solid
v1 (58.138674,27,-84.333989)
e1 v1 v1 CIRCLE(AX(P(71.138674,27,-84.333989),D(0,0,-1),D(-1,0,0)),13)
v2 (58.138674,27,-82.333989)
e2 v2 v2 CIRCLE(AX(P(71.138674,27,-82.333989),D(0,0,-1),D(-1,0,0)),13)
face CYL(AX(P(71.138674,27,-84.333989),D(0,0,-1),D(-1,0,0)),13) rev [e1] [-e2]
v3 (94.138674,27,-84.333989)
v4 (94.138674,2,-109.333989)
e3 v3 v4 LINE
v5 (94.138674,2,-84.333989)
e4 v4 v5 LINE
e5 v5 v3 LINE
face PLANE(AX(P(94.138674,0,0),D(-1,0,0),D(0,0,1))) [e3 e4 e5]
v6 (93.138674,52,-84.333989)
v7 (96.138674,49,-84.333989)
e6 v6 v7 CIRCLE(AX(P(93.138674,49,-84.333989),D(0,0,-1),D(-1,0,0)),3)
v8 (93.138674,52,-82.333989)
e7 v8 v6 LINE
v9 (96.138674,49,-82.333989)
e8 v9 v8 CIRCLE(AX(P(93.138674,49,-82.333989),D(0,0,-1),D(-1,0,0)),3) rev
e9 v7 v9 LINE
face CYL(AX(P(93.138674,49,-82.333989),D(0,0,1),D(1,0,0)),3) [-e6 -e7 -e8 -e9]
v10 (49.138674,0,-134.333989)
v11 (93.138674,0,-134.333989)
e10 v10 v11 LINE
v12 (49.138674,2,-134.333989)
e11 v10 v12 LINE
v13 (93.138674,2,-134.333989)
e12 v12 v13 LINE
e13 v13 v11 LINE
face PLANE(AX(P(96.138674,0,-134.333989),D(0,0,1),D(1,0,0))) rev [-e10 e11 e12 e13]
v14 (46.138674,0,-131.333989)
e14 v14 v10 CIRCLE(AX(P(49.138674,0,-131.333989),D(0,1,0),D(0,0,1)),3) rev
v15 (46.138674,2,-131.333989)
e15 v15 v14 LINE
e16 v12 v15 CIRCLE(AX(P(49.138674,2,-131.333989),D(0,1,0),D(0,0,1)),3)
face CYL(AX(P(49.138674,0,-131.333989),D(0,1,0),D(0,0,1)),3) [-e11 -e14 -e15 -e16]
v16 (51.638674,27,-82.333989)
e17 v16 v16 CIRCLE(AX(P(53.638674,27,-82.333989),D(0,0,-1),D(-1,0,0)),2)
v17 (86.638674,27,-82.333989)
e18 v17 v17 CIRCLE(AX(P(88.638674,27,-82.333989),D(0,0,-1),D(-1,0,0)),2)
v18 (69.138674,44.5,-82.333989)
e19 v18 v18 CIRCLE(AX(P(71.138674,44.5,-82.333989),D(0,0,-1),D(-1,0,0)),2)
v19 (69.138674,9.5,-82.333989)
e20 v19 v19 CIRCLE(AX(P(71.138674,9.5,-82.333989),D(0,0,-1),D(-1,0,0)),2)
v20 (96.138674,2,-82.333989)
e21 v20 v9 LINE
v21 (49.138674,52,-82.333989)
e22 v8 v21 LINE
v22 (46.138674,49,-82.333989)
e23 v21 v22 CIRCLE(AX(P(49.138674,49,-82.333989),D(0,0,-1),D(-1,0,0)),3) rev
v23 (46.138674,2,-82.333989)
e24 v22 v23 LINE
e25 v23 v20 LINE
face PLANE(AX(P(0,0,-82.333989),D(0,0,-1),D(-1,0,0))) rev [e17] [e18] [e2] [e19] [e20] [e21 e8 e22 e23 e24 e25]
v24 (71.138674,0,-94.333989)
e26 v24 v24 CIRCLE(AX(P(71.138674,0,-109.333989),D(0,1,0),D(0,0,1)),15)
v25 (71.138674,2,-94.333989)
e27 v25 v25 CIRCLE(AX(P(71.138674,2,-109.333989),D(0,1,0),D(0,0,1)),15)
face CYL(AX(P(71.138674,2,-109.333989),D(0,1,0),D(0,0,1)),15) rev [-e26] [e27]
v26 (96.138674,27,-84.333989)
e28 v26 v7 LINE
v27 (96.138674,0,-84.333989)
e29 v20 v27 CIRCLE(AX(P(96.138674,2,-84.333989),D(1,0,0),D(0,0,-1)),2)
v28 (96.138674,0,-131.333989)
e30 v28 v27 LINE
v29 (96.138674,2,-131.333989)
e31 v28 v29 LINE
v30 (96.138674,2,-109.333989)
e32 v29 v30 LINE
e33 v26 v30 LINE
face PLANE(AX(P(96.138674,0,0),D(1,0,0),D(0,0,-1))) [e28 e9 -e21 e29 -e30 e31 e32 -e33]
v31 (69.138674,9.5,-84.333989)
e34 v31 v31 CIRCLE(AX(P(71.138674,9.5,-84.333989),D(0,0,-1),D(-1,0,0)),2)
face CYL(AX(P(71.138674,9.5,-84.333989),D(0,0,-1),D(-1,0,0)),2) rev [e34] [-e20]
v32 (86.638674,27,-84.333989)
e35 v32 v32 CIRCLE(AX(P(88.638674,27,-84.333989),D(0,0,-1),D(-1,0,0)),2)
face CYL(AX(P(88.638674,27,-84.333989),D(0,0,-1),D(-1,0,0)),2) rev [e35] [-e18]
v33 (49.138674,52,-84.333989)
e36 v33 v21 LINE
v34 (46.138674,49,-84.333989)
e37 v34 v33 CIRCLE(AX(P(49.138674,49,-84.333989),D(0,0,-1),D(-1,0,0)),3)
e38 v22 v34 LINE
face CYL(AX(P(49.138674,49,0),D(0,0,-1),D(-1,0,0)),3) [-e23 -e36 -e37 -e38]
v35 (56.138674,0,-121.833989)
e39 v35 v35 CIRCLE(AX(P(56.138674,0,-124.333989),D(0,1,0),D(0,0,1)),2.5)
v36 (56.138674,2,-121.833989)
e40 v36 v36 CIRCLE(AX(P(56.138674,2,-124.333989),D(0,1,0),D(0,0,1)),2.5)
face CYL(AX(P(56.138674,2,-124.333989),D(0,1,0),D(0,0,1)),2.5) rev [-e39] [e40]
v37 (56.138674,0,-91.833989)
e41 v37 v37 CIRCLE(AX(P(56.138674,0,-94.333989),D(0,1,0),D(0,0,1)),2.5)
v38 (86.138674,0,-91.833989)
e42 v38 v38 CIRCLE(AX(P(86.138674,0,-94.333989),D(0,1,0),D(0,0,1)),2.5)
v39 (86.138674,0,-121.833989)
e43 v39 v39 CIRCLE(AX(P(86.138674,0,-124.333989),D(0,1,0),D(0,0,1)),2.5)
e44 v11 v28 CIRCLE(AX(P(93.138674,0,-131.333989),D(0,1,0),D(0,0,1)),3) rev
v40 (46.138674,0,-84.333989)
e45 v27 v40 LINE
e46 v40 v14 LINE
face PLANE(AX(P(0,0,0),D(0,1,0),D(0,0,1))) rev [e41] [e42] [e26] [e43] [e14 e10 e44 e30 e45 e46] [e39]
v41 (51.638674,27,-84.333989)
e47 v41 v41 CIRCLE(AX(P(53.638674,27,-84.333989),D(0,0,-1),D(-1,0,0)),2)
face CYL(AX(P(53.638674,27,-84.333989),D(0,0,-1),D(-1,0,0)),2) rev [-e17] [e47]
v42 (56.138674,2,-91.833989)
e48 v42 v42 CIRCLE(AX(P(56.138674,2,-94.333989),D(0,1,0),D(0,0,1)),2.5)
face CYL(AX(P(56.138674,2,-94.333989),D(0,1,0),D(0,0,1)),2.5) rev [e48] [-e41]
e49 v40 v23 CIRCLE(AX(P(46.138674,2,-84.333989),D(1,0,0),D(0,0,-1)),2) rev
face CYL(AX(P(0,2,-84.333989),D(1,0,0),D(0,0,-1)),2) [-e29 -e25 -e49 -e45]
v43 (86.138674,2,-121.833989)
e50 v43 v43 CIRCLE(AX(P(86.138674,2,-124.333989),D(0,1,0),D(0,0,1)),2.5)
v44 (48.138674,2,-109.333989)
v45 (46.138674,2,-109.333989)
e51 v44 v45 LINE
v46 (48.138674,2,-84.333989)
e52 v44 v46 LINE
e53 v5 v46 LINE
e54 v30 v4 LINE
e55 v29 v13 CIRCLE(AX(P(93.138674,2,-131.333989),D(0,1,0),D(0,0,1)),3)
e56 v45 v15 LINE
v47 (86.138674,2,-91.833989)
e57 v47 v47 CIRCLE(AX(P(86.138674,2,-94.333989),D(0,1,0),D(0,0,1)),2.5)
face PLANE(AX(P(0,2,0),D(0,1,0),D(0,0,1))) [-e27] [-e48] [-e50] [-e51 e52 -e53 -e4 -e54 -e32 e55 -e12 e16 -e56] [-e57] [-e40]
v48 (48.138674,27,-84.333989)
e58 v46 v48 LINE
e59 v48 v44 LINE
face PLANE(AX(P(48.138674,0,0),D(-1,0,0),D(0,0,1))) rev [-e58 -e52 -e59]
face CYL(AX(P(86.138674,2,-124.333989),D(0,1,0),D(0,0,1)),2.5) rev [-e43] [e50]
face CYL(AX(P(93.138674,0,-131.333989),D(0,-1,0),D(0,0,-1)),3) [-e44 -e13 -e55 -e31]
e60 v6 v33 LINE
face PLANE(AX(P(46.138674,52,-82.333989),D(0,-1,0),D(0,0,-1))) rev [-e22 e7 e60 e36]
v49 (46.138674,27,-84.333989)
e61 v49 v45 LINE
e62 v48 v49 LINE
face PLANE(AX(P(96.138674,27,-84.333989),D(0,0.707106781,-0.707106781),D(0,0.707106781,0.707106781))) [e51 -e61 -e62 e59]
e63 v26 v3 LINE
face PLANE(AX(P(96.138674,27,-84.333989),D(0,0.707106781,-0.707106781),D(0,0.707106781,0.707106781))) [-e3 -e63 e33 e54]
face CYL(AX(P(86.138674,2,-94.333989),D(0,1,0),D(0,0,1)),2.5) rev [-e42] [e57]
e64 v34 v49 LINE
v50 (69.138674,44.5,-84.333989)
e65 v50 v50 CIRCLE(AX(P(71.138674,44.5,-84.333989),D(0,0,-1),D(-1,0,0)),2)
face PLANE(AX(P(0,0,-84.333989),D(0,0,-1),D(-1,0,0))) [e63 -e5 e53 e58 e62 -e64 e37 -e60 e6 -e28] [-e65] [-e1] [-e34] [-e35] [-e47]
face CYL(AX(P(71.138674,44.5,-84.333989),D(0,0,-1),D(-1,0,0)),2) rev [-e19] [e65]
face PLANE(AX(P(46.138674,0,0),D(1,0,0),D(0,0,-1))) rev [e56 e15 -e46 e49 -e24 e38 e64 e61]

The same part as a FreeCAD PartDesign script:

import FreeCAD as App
import Part
import Sketcher

V = App.Vector
Q = App.Units.Quantity


def edges_at(feature, points):
    """Names of the edges that pass closest to the given points."""
    edges = feature.Shape.Edges
    near = lambda p: min(range(len(edges)), key=lambda i: edges[i].distToShape(Part.Vertex(*p))[0])
    return sorted({f"Edge{near(p) + 1}" for p in points})

doc = App.newDocument("Part")
params = doc.addObject("Spreadsheet::Sheet", "Params")
for row, (alias, value) in enumerate([
    ("sketch1_width", "25 mm"),
    ("pad1_length", "50 mm"),
    ("sketch2_width", "50 mm"),
    ("pad2_length", "2 mm"),
    ("sketch3_width", "25 mm"),
    ("pocket1_length", "46 mm"),
    ("sketch4_width", "50 mm"),
    ("sketch4_height", "52 mm"),
    ("pad3_length", "2 mm"),
    ("sketch5_diameter", "26 mm"),
    ("hole_diameter", "26 mm"),
    ("sketch6_diameter", "4 mm"),
    ("hole2_diameter", "4 mm"),
    ("sketch7_diameter", "30 mm"),
    ("hole3_diameter", "30 mm"),
    ("sketch8_diameter", "5 mm"),
    ("hole4_diameter", "5 mm"),
    ("fillet_radius", "2 mm"),
    ("fillet2_radius", "3 mm"),
], start=1):
    params.set(f"A{row}", alias)
    params.set(f"B{row}", "=" + value)
    params.setAlias(f"B{row}", alias)

body = doc.addObject("PartDesign::Body", "Body")

# Sketch on YZ plane
sketch1 = body.newObject("Sketcher::SketchObject", "Sketch")
sketch1.AttachmentSupport = (doc.getObject("YZ_Plane"), [""])
sketch1.MapMode = "FlatFace"
sketch1.AttachmentOffset = App.Placement(V(0, 0, 46.138674), App.Rotation())
sketch1.addGeometry([
    Part.LineSegment(V(27, -84, 0), V(2, -109, 0)),
    Part.LineSegment(V(2, -109, 0), V(2, -84, 0)),
    Part.LineSegment(V(2, -84, 0), V(27, -84, 0)),
], False)
sketch1.addConstraint([
    Sketcher.Constraint("Coincident", 0, 2, 1, 1),
    Sketcher.Constraint("Coincident", 1, 2, 2, 1),
    Sketcher.Constraint("Coincident", 2, 2, 0, 1),
    Sketcher.Constraint("Vertical", 1),
    Sketcher.Constraint("Horizontal", 2),
    Sketcher.Constraint("Equal", 2, 1),
    Sketcher.Constraint("DistanceX", 2, 1, 2, 2, Q("25 mm")),
    Sketcher.Constraint("DistanceX", -1, 1, 0, 2, Q("2 mm")),
    Sketcher.Constraint("DistanceY", 0, 2, -1, 1, Q("109.333989 mm")),
])
sketch1.setExpression("Constraints[6]", "Params.sketch1_width")
pad1 = body.newObject("PartDesign::Pad", "Pad")
pad1.Profile = sketch1
pad1.setExpression("Length", "Params.pad1_length")

# Sketch on XZ plane
sketch2 = body.newObject("Sketcher::SketchObject", "Sketch001")
sketch2.AttachmentSupport = (doc.getObject("XZ_Plane"), [""])
sketch2.MapMode = "FlatFace"
sketch2.AttachmentOffset = App.Placement(V(0, 0, -2), App.Rotation())
sketch2.addGeometry([
    Part.LineSegment(V(46, -84, 0), V(46, -134, 0)),
    Part.LineSegment(V(46, -134, 0), V(96, -134, 0)),
    Part.LineSegment(V(96, -134, 0), V(96, -84, 0)),
    Part.LineSegment(V(96, -84, 0), V(46, -84, 0)),
], False)
sketch2.addConstraint([
    Sketcher.Constraint("Coincident", 0, 2, 1, 1),
    Sketcher.Constraint("Coincident", 1, 2, 2, 1),
    Sketcher.Constraint("Coincident", 2, 2, 3, 1),
    Sketcher.Constraint("Coincident", 3, 2, 0, 1),
    Sketcher.Constraint("Vertical", 0),
    Sketcher.Constraint("Horizontal", 1),
    Sketcher.Constraint("Vertical", 2),
    Sketcher.Constraint("Horizontal", 3),
    Sketcher.Constraint("Equal", 3, 0),
    Sketcher.Constraint("DistanceX", 1, 1, 1, 2, Q("50 mm")),
    Sketcher.Constraint("DistanceY", 0, 2, -1, 1, Q("134.333989 mm")),
    Sketcher.Constraint("DistanceX", -1, 1, 0, 2, Q("46.138674 mm")),
])
sketch2.setExpression("Constraints[9]", "Params.sketch2_width")
pad2 = body.newObject("PartDesign::Pad", "Pad001")
pad2.Profile = sketch2
pad2.setExpression("Length", "Params.pad2_length")

# Sketch on YZ plane
sketch3 = body.newObject("Sketcher::SketchObject", "Sketch002")
sketch3.AttachmentSupport = (doc.getObject("YZ_Plane"), [""])
sketch3.MapMode = "FlatFace"
sketch3.AttachmentOffset = App.Placement(V(0, 0, 48.138674), App.Rotation())
sketch3.addGeometry([
    Part.LineSegment(V(2, -84, 0), V(27, -84, 0)),
    Part.LineSegment(V(27, -84, 0), V(2, -109, 0)),
    Part.LineSegment(V(2, -109, 0), V(2, -84, 0)),
], False)
sketch3.addConstraint([
    Sketcher.Constraint("Coincident", 0, 2, 1, 1),
    Sketcher.Constraint("Coincident", 1, 2, 2, 1),
    Sketcher.Constraint("Coincident", 2, 2, 0, 1),
    Sketcher.Constraint("Horizontal", 0),
    Sketcher.Constraint("Vertical", 2),
    Sketcher.Constraint("Equal", 0, 2),
    Sketcher.Constraint("DistanceX", 0, 1, 0, 2, Q("25 mm")),
    Sketcher.Constraint("DistanceX", -1, 1, 0, 2, Q("27 mm")),
    Sketcher.Constraint("DistanceY", 0, 2, -1, 1, Q("84.333989 mm")),
])
sketch3.setExpression("Constraints[6]", "Params.sketch3_width")
pocket1 = body.newObject("PartDesign::Pocket", "Pocket")
pocket1.Profile = sketch3
pocket1.setExpression("Length", "Params.pocket1_length")
pocket1.Reversed = True

# Sketch on XY plane
sketch4 = body.newObject("Sketcher::SketchObject", "Sketch003")
sketch4.AttachmentSupport = (doc.getObject("XY_Plane"), [""])
sketch4.MapMode = "FlatFace"
sketch4.AttachmentOffset = App.Placement(V(0, 0, -84.333989), App.Rotation())
sketch4.addGeometry([
    Part.LineSegment(V(46, 52, 0), V(46, 0, 0)),
    Part.LineSegment(V(46, 0, 0), V(96, 0, 0)),
    Part.LineSegment(V(96, 0, 0), V(96, 52, 0)),
    Part.LineSegment(V(96, 52, 0), V(46, 52, 0)),
], False)
sketch4.addConstraint([
    Sketcher.Constraint("Coincident", 0, 2, 1, 1),
    Sketcher.Constraint("Coincident", 1, 2, 2, 1),
    Sketcher.Constraint("Coincident", 2, 2, 3, 1),
    Sketcher.Constraint("Coincident", 3, 2, 0, 1),
    Sketcher.Constraint("Vertical", 0),
    Sketcher.Constraint("Horizontal", 1),
    Sketcher.Constraint("Vertical", 2),
    Sketcher.Constraint("Horizontal", 3),
    Sketcher.Constraint("PointOnObject", 0, 2, -1),
    Sketcher.Constraint("DistanceX", 1, 1, 1, 2, Q("50 mm")),
    Sketcher.Constraint("DistanceY", 0, 2, 0, 1, Q("52 mm")),
    Sketcher.Constraint("DistanceX", -1, 1, 0, 2, Q("46.138674 mm")),
])
sketch4.setExpression("Constraints[9]", "Params.sketch4_width")
sketch4.setExpression("Constraints[10]", "Params.sketch4_height")
pad3 = body.newObject("PartDesign::Pad", "Pad002")
pad3.Profile = sketch4
pad3.setExpression("Length", "Params.pad3_length")

# Sketch on XY plane
sketch5 = body.newObject("Sketcher::SketchObject", "Sketch004")
sketch5.AttachmentSupport = (doc.getObject("XY_Plane"), [""])
sketch5.MapMode = "FlatFace"
sketch5.AttachmentOffset = App.Placement(V(0, 0, -84.333989), App.Rotation())
sketch5.addGeometry(Part.Circle(V(71, 27, 0), V(0, 0, 1), 13), False)
sketch5.addConstraint([
    Sketcher.Constraint("Diameter", 0, Q("26 mm")),
    Sketcher.Constraint("DistanceY", -1, 1, 0, 3, Q("27 mm")),
    Sketcher.Constraint("DistanceX", -1, 1, 0, 3, Q("71.138674 mm")),
])
sketch5.setExpression("Constraints[0]", "Params.sketch5_diameter")
doc.recompute()
hole = body.newObject("PartDesign::Hole", "Hole")
hole.Profile = sketch5
hole.ThreadType = "None"
hole.setExpression("Diameter", "Params.hole_diameter")
hole.DepthType = "ThroughAll"
hole.Reversed = True

# Sketch on XY plane
sketch6 = body.newObject("Sketcher::SketchObject", "Sketch005")
sketch6.AttachmentSupport = (doc.getObject("XY_Plane"), [""])
sketch6.MapMode = "FlatFace"
sketch6.AttachmentOffset = App.Placement(V(0, 0, -84.333989), App.Rotation())
sketch6.addGeometry(Part.Circle(V(71.1, 44.5, 0), V(0, 0, 1), 2), False)
sketch6.addConstraint([
    Sketcher.Constraint("Diameter", 0, Q("4 mm")),
    Sketcher.Constraint("DistanceY", -1, 1, 0, 3, Q("44.5 mm")),
    Sketcher.Constraint("DistanceX", -1, 1, 0, 3, Q("71.138674 mm")),
])
sketch6.setExpression("Constraints[0]", "Params.sketch6_diameter")
doc.recompute()
hole2 = body.newObject("PartDesign::Hole", "Hole001")
hole2.Profile = sketch6
hole2.ThreadType = "None"
hole2.setExpression("Diameter", "Params.hole2_diameter")
hole2.DepthType = "ThroughAll"
hole2.Reversed = True

# Sketch on XZ plane
sketch7 = body.newObject("Sketcher::SketchObject", "Sketch006")
sketch7.AttachmentSupport = (doc.getObject("XZ_Plane"), [""])
sketch7.MapMode = "FlatFace"
sketch7.AttachmentOffset = App.Placement(V(0, 0, -2), App.Rotation())
sketch7.addGeometry(Part.Circle(V(71, -109, 0), V(0, 0, 1), 15), False)
sketch7.addConstraint([
    Sketcher.Constraint("Diameter", 0, Q("30 mm")),
    Sketcher.Constraint("DistanceY", 0, 3, -1, 1, Q("109.333989 mm")),
    Sketcher.Constraint("DistanceX", -1, 1, 0, 3, Q("71.138674 mm")),
])
sketch7.setExpression("Constraints[0]", "Params.sketch7_diameter")
doc.recompute()
hole3 = body.newObject("PartDesign::Hole", "Hole002")
hole3.Profile = sketch7
hole3.ThreadType = "None"
hole3.setExpression("Diameter", "Params.hole3_diameter")
hole3.DepthType = "ThroughAll"
hole3.Reversed = True

# Sketch on XZ plane
sketch8 = body.newObject("Sketcher::SketchObject", "Sketch007")
sketch8.AttachmentSupport = (doc.getObject("XZ_Plane"), [""])
sketch8.MapMode = "FlatFace"
sketch8.AttachmentOffset = App.Placement(V(0, 0, -2), App.Rotation())
sketch8.addGeometry(Part.Circle(V(56.1, -124.3, 0), V(0, 0, 1), 2.5), False)
sketch8.addConstraint([
    Sketcher.Constraint("Diameter", 0, Q("5 mm")),
    Sketcher.Constraint("DistanceY", 0, 3, -1, 1, Q("124.333989 mm")),
    Sketcher.Constraint("DistanceX", -1, 1, 0, 3, Q("56.138674 mm")),
])
sketch8.setExpression("Constraints[0]", "Params.sketch8_diameter")
doc.recompute()
hole4 = body.newObject("PartDesign::Hole", "Hole003")
hole4.Profile = sketch8
hole4.ThreadType = "None"
hole4.setExpression("Diameter", "Params.hole4_diameter")
hole4.DepthType = "ThroughAll"
hole4.Reversed = True
doc.recompute()

fillet = body.newObject("PartDesign::Fillet", "Fillet")
fillet.Base = (hole4, edges_at(hole4, [(71.139, 0, -82.334)]))
fillet.setExpression("Radius", "Params.fillet_radius")
doc.recompute()

fillet2 = body.newObject("PartDesign::Fillet", "Fillet001")
fillet2.Base = (fillet, edges_at(fillet, [
    (96.139, 52, -83.334),
    (96.139, 1, -134.334),
    (46.139, 52, -83.334),
    (46.139, 1, -134.334),
]))
fillet2.setExpression("Radius", "Params.fillet2_radius")
doc.recompute()

datumline = body.newObject("PartDesign::Line", "DatumLine")
datumline.Placement = App.Placement(V(71.138674, 0, -109.333989), App.Rotation(V(0, 0, 1), V(0, 1, 0)))
polarpattern = body.newObject("PartDesign::PolarPattern", "PolarPattern")
polarpattern.Originals = [hole4]
polarpattern.Axis = (datumline, [""])
polarpattern.Angle = 360
polarpattern.Occurrences = 4
body.Tip = polarpattern
doc.recompute()

datumline2 = body.newObject("PartDesign::Line", "DatumLine001")
datumline2.Placement = App.Placement(V(71.138674, 27, 0), App.Rotation(V(0, 0, 1), V(0, 0, 1)))
polarpattern2 = body.newObject("PartDesign::PolarPattern", "PolarPattern001")
polarpattern2.Originals = [hole2]
polarpattern2.Axis = (datumline2, [""])
polarpattern2.Angle = 360
polarpattern2.Occurrences = 4
body.Tip = polarpattern2

doc.recompute()
